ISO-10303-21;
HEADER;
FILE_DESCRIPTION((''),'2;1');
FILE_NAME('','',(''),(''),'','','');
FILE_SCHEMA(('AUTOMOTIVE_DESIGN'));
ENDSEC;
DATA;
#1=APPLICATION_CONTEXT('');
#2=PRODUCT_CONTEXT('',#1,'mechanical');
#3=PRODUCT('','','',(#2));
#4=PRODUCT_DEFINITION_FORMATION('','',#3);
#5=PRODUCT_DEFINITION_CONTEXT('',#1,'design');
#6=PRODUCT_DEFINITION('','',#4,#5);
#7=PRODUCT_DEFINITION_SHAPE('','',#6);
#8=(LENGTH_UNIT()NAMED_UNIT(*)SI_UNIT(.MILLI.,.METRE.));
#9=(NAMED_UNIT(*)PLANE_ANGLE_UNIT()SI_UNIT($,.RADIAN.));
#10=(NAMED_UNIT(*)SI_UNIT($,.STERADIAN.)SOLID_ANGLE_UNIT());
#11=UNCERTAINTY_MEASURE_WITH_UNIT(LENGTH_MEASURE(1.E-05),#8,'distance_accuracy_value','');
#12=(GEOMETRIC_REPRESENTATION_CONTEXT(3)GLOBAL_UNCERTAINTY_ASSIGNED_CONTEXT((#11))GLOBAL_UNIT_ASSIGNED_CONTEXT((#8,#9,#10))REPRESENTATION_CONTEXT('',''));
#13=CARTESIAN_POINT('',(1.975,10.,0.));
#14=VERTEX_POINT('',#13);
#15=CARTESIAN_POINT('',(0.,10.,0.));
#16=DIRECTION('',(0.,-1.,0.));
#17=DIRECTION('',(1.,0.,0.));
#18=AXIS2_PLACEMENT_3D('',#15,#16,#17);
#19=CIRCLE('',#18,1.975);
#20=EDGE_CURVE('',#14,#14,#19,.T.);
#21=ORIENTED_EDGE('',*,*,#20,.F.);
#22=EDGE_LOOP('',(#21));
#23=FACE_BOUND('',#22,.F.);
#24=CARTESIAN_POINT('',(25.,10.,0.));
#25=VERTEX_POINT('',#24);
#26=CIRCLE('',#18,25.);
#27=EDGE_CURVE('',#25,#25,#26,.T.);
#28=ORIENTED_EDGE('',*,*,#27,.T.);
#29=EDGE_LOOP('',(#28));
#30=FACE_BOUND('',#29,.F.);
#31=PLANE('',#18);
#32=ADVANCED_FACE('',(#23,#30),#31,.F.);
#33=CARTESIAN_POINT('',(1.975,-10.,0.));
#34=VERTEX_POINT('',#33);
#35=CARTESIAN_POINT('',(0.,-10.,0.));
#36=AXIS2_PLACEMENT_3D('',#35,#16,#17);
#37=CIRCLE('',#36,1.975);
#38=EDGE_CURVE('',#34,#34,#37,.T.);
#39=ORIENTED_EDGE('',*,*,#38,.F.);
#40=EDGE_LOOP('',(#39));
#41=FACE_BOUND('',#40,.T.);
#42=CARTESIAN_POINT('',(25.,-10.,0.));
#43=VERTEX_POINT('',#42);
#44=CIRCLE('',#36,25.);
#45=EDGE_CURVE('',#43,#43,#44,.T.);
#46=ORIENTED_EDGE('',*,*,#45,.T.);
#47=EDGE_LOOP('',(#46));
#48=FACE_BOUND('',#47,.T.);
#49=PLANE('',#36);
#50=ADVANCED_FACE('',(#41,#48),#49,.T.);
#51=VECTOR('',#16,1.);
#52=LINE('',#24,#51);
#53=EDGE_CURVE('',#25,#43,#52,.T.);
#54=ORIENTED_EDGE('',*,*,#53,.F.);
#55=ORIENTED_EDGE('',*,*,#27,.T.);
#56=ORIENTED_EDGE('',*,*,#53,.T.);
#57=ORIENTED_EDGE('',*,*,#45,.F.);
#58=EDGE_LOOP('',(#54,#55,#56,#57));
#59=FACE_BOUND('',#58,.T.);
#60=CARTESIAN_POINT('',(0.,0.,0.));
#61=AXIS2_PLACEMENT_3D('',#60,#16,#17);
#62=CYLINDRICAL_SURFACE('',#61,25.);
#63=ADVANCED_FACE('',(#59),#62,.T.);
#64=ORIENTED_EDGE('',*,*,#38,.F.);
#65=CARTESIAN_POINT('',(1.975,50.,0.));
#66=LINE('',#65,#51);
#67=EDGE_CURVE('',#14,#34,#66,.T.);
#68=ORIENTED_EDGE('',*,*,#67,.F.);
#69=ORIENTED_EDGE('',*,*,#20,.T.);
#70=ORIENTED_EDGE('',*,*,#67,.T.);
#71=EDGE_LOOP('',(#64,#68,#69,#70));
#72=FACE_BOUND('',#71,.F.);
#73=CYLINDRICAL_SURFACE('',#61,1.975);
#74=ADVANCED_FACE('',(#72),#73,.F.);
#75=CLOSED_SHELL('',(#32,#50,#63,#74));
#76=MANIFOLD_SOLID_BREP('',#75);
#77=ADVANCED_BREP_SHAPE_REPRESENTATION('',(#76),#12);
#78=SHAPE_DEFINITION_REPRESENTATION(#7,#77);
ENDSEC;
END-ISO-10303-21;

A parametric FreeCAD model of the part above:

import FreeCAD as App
import Part
import Sketcher
Q = App.Units.Quantity

doc = App.newDocument("Part")
body = doc.addObject("PartDesign::Body", "Body")

sketch1 = doc.addObject("Sketcher::SketchObject", "Sketch")
body.addObject(sketch1)
sketch1.AttachmentSupport = (doc.XZ_Plane, [""])
sketch1.MapMode = "FlatFace"
sketch1.addGeometry(Part.Circle(App.Vector(0, 0, 0), App.Vector(0, 0, 1), 25), False)
sketch1.addConstraint(Sketcher.Constraint("Coincident", 0, 3, -1, 1))
sketch1.addConstraint(Sketcher.Constraint("Diameter", 0, Q("50 mm")))
pad1 = doc.addObject("PartDesign::Pad", "Pad")
body.addObject(pad1)
pad1.Profile = sketch1
pad1.Length = 20
pad1.Midplane = True

sketch2 = doc.addObject("Sketcher::SketchObject", "Sketch001")
body.addObject(sketch2)
sketch2.AttachmentSupport = (doc.XZ_Plane, [""])
sketch2.MapMode = "FlatFace"
sketch2.addGeometry(Part.Circle(App.Vector(0, 0, 0), App.Vector(0, 0, 1), 2), False)
sketch2.addConstraint(Sketcher.Constraint("Coincident", 0, 3, -1, 1))
sketch2.addConstraint(Sketcher.Constraint("Diameter", 0, Q("3.95 mm")))
pocket1 = doc.addObject("PartDesign::Pocket", "Pocket")
body.addObject(pocket1)
pocket1.Profile = sketch2
pocket1.Length = 100
pocket1.Midplane = True

doc.recompute()
